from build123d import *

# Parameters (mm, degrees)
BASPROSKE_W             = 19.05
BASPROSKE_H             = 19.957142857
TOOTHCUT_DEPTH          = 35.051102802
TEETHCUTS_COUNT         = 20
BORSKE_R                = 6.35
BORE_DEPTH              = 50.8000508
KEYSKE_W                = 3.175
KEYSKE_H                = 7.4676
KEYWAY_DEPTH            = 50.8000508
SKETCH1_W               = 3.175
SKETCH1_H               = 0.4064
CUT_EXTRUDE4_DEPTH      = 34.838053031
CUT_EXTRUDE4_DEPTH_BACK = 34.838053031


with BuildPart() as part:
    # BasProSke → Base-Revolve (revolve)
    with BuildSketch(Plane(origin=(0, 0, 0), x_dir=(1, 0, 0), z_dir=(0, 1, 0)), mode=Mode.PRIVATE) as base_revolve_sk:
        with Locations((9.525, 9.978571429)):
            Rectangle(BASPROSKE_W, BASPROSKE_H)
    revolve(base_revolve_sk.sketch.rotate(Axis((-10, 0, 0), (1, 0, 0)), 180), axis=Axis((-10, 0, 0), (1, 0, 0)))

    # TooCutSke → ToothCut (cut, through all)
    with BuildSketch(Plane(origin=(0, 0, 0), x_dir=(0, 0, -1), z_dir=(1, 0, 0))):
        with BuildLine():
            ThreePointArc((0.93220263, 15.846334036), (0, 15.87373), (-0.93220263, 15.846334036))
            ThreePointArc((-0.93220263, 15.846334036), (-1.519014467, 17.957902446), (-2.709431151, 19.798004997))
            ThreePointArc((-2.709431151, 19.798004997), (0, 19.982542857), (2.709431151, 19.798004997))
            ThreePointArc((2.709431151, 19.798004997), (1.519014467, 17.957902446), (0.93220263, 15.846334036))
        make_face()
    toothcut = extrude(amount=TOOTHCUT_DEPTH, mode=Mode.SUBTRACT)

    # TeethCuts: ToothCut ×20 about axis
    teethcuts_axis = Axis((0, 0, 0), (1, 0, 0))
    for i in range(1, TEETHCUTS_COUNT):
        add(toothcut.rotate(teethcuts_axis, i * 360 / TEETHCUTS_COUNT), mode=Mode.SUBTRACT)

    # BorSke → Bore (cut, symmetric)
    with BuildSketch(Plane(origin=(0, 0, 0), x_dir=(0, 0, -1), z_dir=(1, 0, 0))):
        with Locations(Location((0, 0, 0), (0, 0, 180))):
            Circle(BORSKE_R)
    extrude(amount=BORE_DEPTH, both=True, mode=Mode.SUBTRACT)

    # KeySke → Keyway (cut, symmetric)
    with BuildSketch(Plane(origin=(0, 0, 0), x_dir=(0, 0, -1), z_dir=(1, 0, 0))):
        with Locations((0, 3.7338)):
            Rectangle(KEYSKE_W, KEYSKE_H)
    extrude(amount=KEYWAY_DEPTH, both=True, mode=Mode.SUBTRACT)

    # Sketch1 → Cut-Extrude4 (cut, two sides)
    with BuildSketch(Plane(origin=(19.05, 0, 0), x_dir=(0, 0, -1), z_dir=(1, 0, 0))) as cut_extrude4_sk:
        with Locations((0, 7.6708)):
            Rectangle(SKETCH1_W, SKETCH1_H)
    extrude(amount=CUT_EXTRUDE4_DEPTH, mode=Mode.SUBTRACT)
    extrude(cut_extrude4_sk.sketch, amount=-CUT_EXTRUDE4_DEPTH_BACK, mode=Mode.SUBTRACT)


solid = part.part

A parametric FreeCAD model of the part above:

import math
import FreeCAD as App
import Part
import Sketcher
Q = App.Units.Quantity


def add_polygon(sketch, points):
    """Adds a closed chain of lines whose ends are joined by coincident constraints."""
    first, n = sketch.GeometryCount, len(points)
    for a, b in zip(points, points[1:] + points[:1]):
        sketch.addGeometry(Part.LineSegment(App.Vector(*a, 0), App.Vector(*b, 0)), False)
    for i in range(n):
        sketch.addConstraint(Sketcher.Constraint("Coincident", first + i, 2, first + (i + 1) % n, 1))

doc = App.newDocument("Part")
body = doc.addObject("PartDesign::Body", "Body")

# Sketch on XZ plane
sketch1 = body.newObject("Sketcher::SketchObject", "Sketch")
sketch1.AttachmentSupport = (doc.getObject("XZ_Plane"), [""])
sketch1.MapMode = "FlatFace"
add_polygon(sketch1, [(0, -20), (0, 0), (19, 0), (19, -20)])  # lines 0-3
sketch1.addConstraint(Sketcher.Constraint("Vertical", 0))
sketch1.addConstraint(Sketcher.Constraint("Horizontal", 1))
sketch1.addConstraint(Sketcher.Constraint("Vertical", 2))
sketch1.addConstraint(Sketcher.Constraint("Horizontal", 3))
sketch1.addConstraint(Sketcher.Constraint("Coincident", 0, 2, -1, 1))
sketch1.addConstraint(Sketcher.Constraint("DistanceX", 1, 1, 1, 2, Q("0.75 in")))
sketch1.addConstraint(Sketcher.Constraint("DistanceY", 0, 1, 0, 2, 19.957143))
revolution = body.newObject("PartDesign::Revolution", "Revolution")
revolution.Profile = sketch1
revolution.ReferenceAxis = (sketch1, ["H_Axis"])
revolution.Angle = 360

# Sketch on YZ plane
sketch2 = body.newObject("Sketcher::SketchObject", "Sketch001")
sketch2.AttachmentSupport = (doc.getObject("YZ_Plane"), [""])
sketch2.MapMode = "FlatFace"
sketch2.addGeometry(Part.ArcOfCircle(Part.Circle(App.Vector(0, 0, 0), App.Vector(0, 0, 1), 15.9), math.radians(-3.37), math.radians(3.37)), False)
sketch2.addGeometry(Part.ArcOfCircle(Part.Circle(App.Vector(15, -8.1, 0), App.Vector(0, 0, 1), 7.3), math.radians(48), math.radians(83)), False)
sketch2.addGeometry(Part.ArcOfCircle(Part.Circle(App.Vector(0, 0, 0), App.Vector(0, 0, 1), 20), math.radians(-7.79), math.radians(7.79)), False)
sketch2.addGeometry(Part.ArcOfCircle(Part.Circle(App.Vector(15, 8.1, 0), App.Vector(0, 0, 1), 7.3), math.radians(-83), math.radians(-48)), False)
sketch2.addConstraint(Sketcher.Constraint("Coincident", 0, 1, 1, 2))
sketch2.addConstraint(Sketcher.Constraint("Coincident", 1, 1, 2, 1))
sketch2.addConstraint(Sketcher.Constraint("Coincident", 2, 2, 3, 2))
sketch2.addConstraint(Sketcher.Constraint("Coincident", 3, 1, 0, 2))
sketch2.addConstraint(Sketcher.Constraint("Coincident", 0, 3, -1, 1))
sketch2.addConstraint(Sketcher.Constraint("Coincident", 2, 3, -1, 1))
sketch2.addConstraint(Sketcher.Constraint("Equal", 1, 3))
sketch2.addConstraint(Sketcher.Constraint("Symmetric", 1, 3, 3, 3, -1))
sketch2.addConstraint(Sketcher.Constraint("Radius", 0, 15.87373))
sketch2.addConstraint(Sketcher.Constraint("Radius", 1, 7.257143))
sketch2.addConstraint(Sketcher.Constraint("Radius", 2, 19.982543))
sketch2.addConstraint(Sketcher.Constraint("DistanceY", 1, 3, -1, 1, 8.1376))
sketch2.addConstraint(Sketcher.Constraint("DistanceY", 1, 1, -1, 1, 2.709431))
pocket1 = body.newObject("PartDesign::Pocket", "Pocket")
pocket1.Profile = sketch2
pocket1.Type = "ThroughAll"
pocket1.Reversed = True
doc.recompute()

polarpattern = body.newObject("PartDesign::PolarPattern", "PolarPattern")
polarpattern.Originals = [pocket1]
polarpattern.Axis = (doc.getObject("X_Axis"), [""])
polarpattern.Angle = 360
polarpattern.Occurrences = 20
body.Tip = polarpattern

# Sketch on YZ plane
sketch3 = body.newObject("Sketcher::SketchObject", "Sketch002")
sketch3.AttachmentSupport = (doc.getObject("YZ_Plane"), [""])
sketch3.MapMode = "FlatFace"
sketch3.addGeometry(Part.Circle(App.Vector(0, 0, 0), App.Vector(0, 0, 1), 6), False)
sketch3.addConstraint(Sketcher.Constraint("Coincident", 0, 3, -1, 1))
sketch3.addConstraint(Sketcher.Constraint("Diameter", 0, Q("0.5 in")))
pocket2 = body.newObject("PartDesign::Pocket", "Pocket001")
pocket2.Profile = sketch3
pocket2.Length = 101.600102
pocket2.Midplane = True

# Sketch on YZ plane
sketch4 = body.newObject("Sketcher::SketchObject", "Sketch003")
sketch4.AttachmentSupport = (doc.getObject("YZ_Plane"), [""])
sketch4.MapMode = "FlatFace"
add_polygon(sketch4, [(7.5, 1.6), (0, 1.6), (0, -1.6), (7.5, -1.6)])  # lines 0-3
sketch4.addConstraint(Sketcher.Constraint("Horizontal", 0))
sketch4.addConstraint(Sketcher.Constraint("Vertical", 1))
sketch4.addConstraint(Sketcher.Constraint("Horizontal", 2))
sketch4.addConstraint(Sketcher.Constraint("Vertical", 3))
sketch4.addConstraint(Sketcher.Constraint("Symmetric", 0, 2, 1, 2, -1, 1))
sketch4.addConstraint(Sketcher.Constraint("DistanceX", 0, 2, 0, 1, Q("0.294 in")))
sketch4.addConstraint(Sketcher.Constraint("DistanceY", 1, 2, 1, 1, Q("0.125 in")))
pocket3 = body.newObject("PartDesign::Pocket", "Pocket002")
pocket3.Profile = sketch4
pocket3.Length = 101.600102
pocket3.Midplane = True

# Sketch on YZ plane
sketch5 = body.newObject("Sketcher::SketchObject", "Sketch004")
sketch5.AttachmentSupport = (doc.getObject("YZ_Plane"), [""])
sketch5.MapMode = "FlatFace"
sketch5.AttachmentOffset = App.Placement(App.Vector(0, 0, 0.75 * 25.4), App.Rotation())
add_polygon(sketch5, [(7.87, 1.59), (7.47, 1.59), (7.47, -1.59), (7.87, -1.59)])  # lines 0-3
sketch5.addConstraint(Sketcher.Constraint("Horizontal", 0))
sketch5.addConstraint(Sketcher.Constraint("Vertical", 1))
sketch5.addConstraint(Sketcher.Constraint("Horizontal", 2))
sketch5.addConstraint(Sketcher.Constraint("Vertical", 3))
sketch5.addConstraint(Sketcher.Constraint("DistanceX", 0, 2, 0, 1, Q("0.016 in")))
sketch5.addConstraint(Sketcher.Constraint("DistanceY", 1, 2, 1, 1, Q("0.125 in")))
sketch5.addConstraint(Sketcher.Constraint("DistanceX", -1, 1, 2, 2, Q("0.31 in")))
sketch5.addConstraint(Sketcher.Constraint("DistanceY", -1, 1, 0, 2, Q("0.0625 in")))
pocket4 = body.newObject("PartDesign::Pocket", "Pocket003")
pocket4.Profile = sketch5
pocket4.Type = "ThroughAll"
pocket4.Midplane = True

doc.recompute()
